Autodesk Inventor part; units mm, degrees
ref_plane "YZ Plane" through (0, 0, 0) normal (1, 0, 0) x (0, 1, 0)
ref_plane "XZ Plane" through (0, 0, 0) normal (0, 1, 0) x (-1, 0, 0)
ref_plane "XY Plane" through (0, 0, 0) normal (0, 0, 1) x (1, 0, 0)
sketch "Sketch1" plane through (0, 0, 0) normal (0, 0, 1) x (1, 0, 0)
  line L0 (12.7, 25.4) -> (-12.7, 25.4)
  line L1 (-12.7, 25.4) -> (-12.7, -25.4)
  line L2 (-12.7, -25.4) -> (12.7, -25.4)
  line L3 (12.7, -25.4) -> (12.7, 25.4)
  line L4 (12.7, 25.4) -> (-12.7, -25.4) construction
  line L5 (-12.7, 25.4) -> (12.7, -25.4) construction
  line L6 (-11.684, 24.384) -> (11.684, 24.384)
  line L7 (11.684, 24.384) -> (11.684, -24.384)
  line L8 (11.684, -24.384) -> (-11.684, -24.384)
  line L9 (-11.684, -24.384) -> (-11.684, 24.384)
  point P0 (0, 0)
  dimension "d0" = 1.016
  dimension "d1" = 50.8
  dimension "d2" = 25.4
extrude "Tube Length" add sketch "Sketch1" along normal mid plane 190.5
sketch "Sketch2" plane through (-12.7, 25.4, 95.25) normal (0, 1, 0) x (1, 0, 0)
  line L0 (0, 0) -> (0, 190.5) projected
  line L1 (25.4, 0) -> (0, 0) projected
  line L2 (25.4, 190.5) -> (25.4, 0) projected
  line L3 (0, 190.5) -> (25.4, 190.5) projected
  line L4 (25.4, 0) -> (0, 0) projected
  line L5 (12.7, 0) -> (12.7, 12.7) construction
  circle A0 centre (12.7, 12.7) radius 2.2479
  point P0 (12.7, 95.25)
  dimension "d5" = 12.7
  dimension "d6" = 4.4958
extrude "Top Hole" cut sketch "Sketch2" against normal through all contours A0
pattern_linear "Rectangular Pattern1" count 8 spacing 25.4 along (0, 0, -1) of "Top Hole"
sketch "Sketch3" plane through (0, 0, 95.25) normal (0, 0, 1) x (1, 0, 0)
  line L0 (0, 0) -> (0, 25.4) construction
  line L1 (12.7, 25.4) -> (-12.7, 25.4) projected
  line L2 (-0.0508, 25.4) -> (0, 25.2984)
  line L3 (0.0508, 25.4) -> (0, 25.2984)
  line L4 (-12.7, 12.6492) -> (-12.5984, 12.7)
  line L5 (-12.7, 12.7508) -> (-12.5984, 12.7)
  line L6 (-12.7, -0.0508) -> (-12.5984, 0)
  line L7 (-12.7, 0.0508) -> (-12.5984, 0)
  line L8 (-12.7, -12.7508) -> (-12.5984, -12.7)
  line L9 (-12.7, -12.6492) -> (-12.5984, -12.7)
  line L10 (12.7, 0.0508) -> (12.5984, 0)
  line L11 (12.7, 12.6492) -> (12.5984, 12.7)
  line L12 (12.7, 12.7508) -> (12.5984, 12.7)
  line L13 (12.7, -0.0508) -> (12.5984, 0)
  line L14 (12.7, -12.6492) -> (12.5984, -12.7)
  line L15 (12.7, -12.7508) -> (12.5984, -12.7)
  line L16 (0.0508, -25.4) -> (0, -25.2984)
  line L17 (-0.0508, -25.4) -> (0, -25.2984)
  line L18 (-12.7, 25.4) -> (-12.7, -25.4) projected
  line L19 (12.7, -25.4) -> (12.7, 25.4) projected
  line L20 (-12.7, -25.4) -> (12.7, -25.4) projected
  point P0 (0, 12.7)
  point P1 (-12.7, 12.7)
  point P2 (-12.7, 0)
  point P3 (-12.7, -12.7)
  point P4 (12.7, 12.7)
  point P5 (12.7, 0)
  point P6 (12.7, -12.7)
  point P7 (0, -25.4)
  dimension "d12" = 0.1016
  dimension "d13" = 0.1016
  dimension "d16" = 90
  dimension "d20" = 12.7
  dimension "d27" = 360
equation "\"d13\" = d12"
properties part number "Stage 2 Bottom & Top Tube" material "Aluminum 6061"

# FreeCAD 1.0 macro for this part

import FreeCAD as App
import Part
import Sketcher
Q = App.Units.Quantity


def add_polygon(sketch, points):
    """Adds a closed chain of lines whose ends are joined by coincident constraints."""
    first, n = sketch.GeometryCount, len(points)
    for a, b in zip(points, points[1:] + points[:1]):
        sketch.addGeometry(Part.LineSegment(App.Vector(*a, 0), App.Vector(*b, 0)), False)
    for i in range(n):
        sketch.addConstraint(Sketcher.Constraint("Coincident", first + i, 2, first + (i + 1) % n, 1))

doc = App.newDocument("Part")
body = doc.addObject("PartDesign::Body", "Body")

sketch1 = doc.addObject("Sketcher::SketchObject", "Sketch")
body.addObject(sketch1)
sketch1.AttachmentSupport = (doc.XY_Plane, [""])
sketch1.MapMode = "FlatFace"
add_polygon(sketch1, [(12.7, -25.4), (12.7, 25.4), (-12.7, 25.4), (-12.7, -25.4)])
add_polygon(sketch1, [(-11.684, -24.384), (-11.684, 24.384), (11.684, 24.384), (11.684, -24.384)])
sketch1.addConstraint(Sketcher.Constraint("Vertical", 0))
sketch1.addConstraint(Sketcher.Constraint("Horizontal", 1))
sketch1.addConstraint(Sketcher.Constraint("Vertical", 2))
sketch1.addConstraint(Sketcher.Constraint("Horizontal", 3))
sketch1.addConstraint(Sketcher.Constraint("Vertical", 4))
sketch1.addConstraint(Sketcher.Constraint("Horizontal", 5))
sketch1.addConstraint(Sketcher.Constraint("Vertical", 6))
sketch1.addConstraint(Sketcher.Constraint("Horizontal", 7))
sketch1.addConstraint(Sketcher.Constraint("Symmetric", 0, 2, 2, 2, -1, 1))
sketch1.addConstraint(Sketcher.Constraint("Symmetric", 4, 2, 6, 2, -1, 1))
sketch1.addConstraint(Sketcher.Constraint("DistanceX", 1, 2, 1, 1, Q("1 in")))
sketch1.addConstraint(Sketcher.Constraint("DistanceY", 0, 1, 0, 2, Q("2 in")))
sketch1.addConstraint(Sketcher.Constraint("DistanceX", 1, 2, 4, 2, Q("0.04 in")))
sketch1.addConstraint(Sketcher.Constraint("DistanceY", 4, 2, 1, 2, Q("0.04 in")))
pad1 = doc.addObject("PartDesign::Pad", "Pad")
body.addObject(pad1)
pad1.Profile = sketch1
pad1.Length = Q("7.5 in")
pad1.Midplane = True

sketch2 = doc.addObject("Sketcher::SketchObject", "Sketch001")
body.addObject(sketch2)
sketch2.AttachmentSupport = (doc.XZ_Plane, [""])
sketch2.MapMode = "FlatFace"
sketch2.AttachmentOffset = App.Placement(App.Vector(0, 0, -1 * 25.4), App.Rotation())
sketch2.addGeometry(Part.Circle(App.Vector(0, 82.55, 0), App.Vector(0, 0, 1), 2.2479), False)
sketch2.addConstraint(Sketcher.Constraint("PointOnObject", 0, 3, -2))
sketch2.addConstraint(Sketcher.Constraint("Diameter", 0, Q("0.177 in")))
sketch2.addConstraint(Sketcher.Constraint("DistanceY", -1, 1, 0, 3, Q("3.25 in")))
pocket1 = doc.addObject("PartDesign::Pocket", "Pocket")
body.addObject(pocket1)
pocket1.Profile = sketch2
pocket1.Type = "ThroughAll"
pocket1.Reversed = True
doc.recompute()

linearpattern = doc.addObject("PartDesign::LinearPattern", "LinearPattern")
body.addObject(linearpattern)
linearpattern.Originals = [pocket1]
linearpattern.Direction = (doc.Z_Axis, [""])
linearpattern.Mode = "offset"
linearpattern.Offset = Q("1 in")
linearpattern.Occurrences = 8
linearpattern.Reversed = True
body.Tip = linearpattern

doc.recompute()
